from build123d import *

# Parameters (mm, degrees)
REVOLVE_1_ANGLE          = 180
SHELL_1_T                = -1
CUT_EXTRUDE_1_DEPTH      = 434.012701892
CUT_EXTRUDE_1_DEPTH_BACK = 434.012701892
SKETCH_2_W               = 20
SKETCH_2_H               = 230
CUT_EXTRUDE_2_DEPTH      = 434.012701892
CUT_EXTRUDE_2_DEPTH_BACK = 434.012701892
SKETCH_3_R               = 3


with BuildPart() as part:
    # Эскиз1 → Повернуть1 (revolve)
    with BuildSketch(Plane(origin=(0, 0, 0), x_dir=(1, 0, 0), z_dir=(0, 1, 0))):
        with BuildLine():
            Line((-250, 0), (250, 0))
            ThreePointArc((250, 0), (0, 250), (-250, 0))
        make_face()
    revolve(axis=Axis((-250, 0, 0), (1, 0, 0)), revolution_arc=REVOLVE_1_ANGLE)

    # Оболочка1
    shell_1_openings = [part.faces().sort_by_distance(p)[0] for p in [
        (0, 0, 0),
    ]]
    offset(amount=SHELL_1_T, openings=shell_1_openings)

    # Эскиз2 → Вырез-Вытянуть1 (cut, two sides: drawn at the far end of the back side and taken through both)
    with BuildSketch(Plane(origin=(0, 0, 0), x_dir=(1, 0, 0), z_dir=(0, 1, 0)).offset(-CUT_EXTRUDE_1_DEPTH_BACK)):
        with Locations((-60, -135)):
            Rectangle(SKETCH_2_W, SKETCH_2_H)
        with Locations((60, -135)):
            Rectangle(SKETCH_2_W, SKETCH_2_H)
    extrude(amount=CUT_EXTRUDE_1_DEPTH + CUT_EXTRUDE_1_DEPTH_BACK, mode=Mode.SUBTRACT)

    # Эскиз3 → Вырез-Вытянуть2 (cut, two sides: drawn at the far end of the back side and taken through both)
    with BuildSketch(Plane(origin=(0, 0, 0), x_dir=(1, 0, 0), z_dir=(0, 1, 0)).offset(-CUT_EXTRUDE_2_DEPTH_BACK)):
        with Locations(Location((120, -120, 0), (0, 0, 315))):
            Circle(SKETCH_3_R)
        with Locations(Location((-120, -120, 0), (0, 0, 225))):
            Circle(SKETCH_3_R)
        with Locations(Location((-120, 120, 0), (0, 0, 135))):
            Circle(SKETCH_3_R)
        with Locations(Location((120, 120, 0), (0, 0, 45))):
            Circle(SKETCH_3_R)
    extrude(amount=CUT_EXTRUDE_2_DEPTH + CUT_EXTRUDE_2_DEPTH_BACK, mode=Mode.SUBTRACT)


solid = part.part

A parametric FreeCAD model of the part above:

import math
import FreeCAD as App
import Part
import Sketcher

V = App.Vector
Q = App.Units.Quantity


def faces_at(feature, points):
    """Names of the faces that lie closest to the given points."""
    faces = feature.Shape.Faces
    near = lambda p: min(range(len(faces)), key=lambda i: faces[i].distToShape(Part.Vertex(*p))[0])
    return sorted({f"Face{near(p) + 1}" for p in points})


def add_polygon(sketch, points):
    """Adds a closed chain of lines whose ends are joined by coincident constraints."""
    first, n = sketch.GeometryCount, len(points)
    for a, b in zip(points, points[1:] + points[:1]):
        sketch.addGeometry(Part.LineSegment(App.Vector(*a, 0), App.Vector(*b, 0)), False)
    for i in range(n):
        sketch.addConstraint(Sketcher.Constraint("Coincident", first + i, 2, first + (i + 1) % n, 1))

doc = App.newDocument("Part")
params = doc.addObject("Spreadsheet::Sheet", "Params")
for row, (alias, value) in enumerate([
    ("sketch1_radius", "250 mm"),
    ("revolution_angle", "180 deg"),
    ("thickness_wall", "1 mm"),
    ("sketch2_width", "20 mm"),
    ("sketch2_height", "230 mm"),
    ("sketch3_diameter", "6 mm"),
], start=1):
    params.set(f"A{row}", alias)
    params.set(f"B{row}", "=" + value)
    params.setAlias(f"B{row}", alias)

body = doc.addObject("PartDesign::Body", "Body")

# Sketch on XZ plane
sketch1 = doc.addObject("Sketcher::SketchObject", "Sketch")
body.addObject(sketch1)
sketch1.AttachmentSupport = (doc.XZ_Plane, [""])
sketch1.MapMode = "FlatFace"
sketch1.addGeometry(Part.LineSegment(V(-250, 0, 0), V(250, 0, 0)), False)
sketch1.addGeometry(Part.ArcOfCircle(Part.Circle(V(0, 0, 0), V(0, 0, 1), 250), math.radians(180), math.radians(360)), False)
sketch1.addConstraint(Sketcher.Constraint("Coincident", 0, 1, 1, 1))
sketch1.addConstraint(Sketcher.Constraint("Coincident", 1, 2, 0, 2))
sketch1.addConstraint(Sketcher.Constraint("Horizontal", 0))
sketch1.addConstraint(Sketcher.Constraint("Coincident", 1, 3, -1, 1))
sketch1.addConstraint(Sketcher.Constraint("PointOnObject", 0, 1, -1))
sketch1.addConstraint(Sketcher.Constraint("Radius", 1, Q("250 mm")))
sketch1.setExpression("Constraints[5]", "Params.sketch1_radius")
revolution = doc.addObject("PartDesign::Revolution", "Revolution")
body.addObject(revolution)
revolution.Profile = sketch1
revolution.ReferenceAxis = (sketch1, ["H_Axis"])
revolution.setExpression("Angle", "Params.revolution_angle")
doc.recompute()

thickness = doc.addObject("PartDesign::Thickness", "Thickness")
body.addObject(thickness)
thickness.Base = (revolution, faces_at(revolution, [(0, 0, 0)]))
thickness.setExpression("Value", "Params.thickness_wall")
thickness.Reversed = True
thickness.Join = "Arc"

# Sketch on XZ plane
sketch2 = doc.addObject("Sketcher::SketchObject", "Sketch001")
body.addObject(sketch2)
sketch2.AttachmentSupport = (doc.XZ_Plane, [""])
sketch2.MapMode = "FlatFace"
add_polygon(sketch2, [(-70, 20), (-70, 250), (-50, 250), (-50, 20)])  # lines 0-3
add_polygon(sketch2, [(50, 20), (50, 250), (70, 250), (70, 20)])  # lines 4-7
sketch2.addConstraint(Sketcher.Constraint("Vertical", 0))
sketch2.addConstraint(Sketcher.Constraint("Horizontal", 1))
sketch2.addConstraint(Sketcher.Constraint("Vertical", 2))
sketch2.addConstraint(Sketcher.Constraint("Horizontal", 3))
sketch2.addConstraint(Sketcher.Constraint("Vertical", 4))
sketch2.addConstraint(Sketcher.Constraint("Horizontal", 5))
sketch2.addConstraint(Sketcher.Constraint("Vertical", 6))
sketch2.addConstraint(Sketcher.Constraint("Horizontal", 7))
sketch2.addConstraint(Sketcher.Constraint("Symmetric", 1, 2, 4, 2, -2))
sketch2.addConstraint(Sketcher.Constraint("Symmetric", 3, 2, 6, 2, -2))
sketch2.addConstraint(Sketcher.Constraint("DistanceX", 1, 1, 1, 2, Q("20 mm")))
sketch2.addConstraint(Sketcher.Constraint("DistanceY", 0, 1, 0, 2, Q("230 mm")))
sketch2.addConstraint(Sketcher.Constraint("DistanceX", 0, 2, -1, 1, Q("70 mm")))
sketch2.addConstraint(Sketcher.Constraint("DistanceY", -1, 1, 0, 2, Q("250 mm")))
sketch2.setExpression("Constraints[18]", "Params.sketch2_width")
sketch2.setExpression("Constraints[19]", "Params.sketch2_height")
pocket1 = doc.addObject("PartDesign::Pocket", "Pocket")
body.addObject(pocket1)
pocket1.Profile = sketch2
pocket1.Type = "ThroughAll"
pocket1.Midplane = True

# Sketch on XZ plane
sketch3 = doc.addObject("Sketcher::SketchObject", "Sketch002")
body.addObject(sketch3)
sketch3.AttachmentSupport = (doc.XZ_Plane, [""])
sketch3.MapMode = "FlatFace"
sketch3.addGeometry(Part.Circle(V(120, 120, 0), V(0, 0, 1), 3), False)
sketch3.addGeometry(Part.Circle(V(-120, 120, 0), V(0, 0, 1), 3), False)
sketch3.addGeometry(Part.Circle(V(-120, -120, 0), V(0, 0, 1), 3), False)
sketch3.addGeometry(Part.Circle(V(120, -120, 0), V(0, 0, 1), 3), False)
sketch3.addConstraint(Sketcher.Constraint("Equal", 0, 1))
sketch3.addConstraint(Sketcher.Constraint("Equal", 1, 2))
sketch3.addConstraint(Sketcher.Constraint("Equal", 2, 3))
sketch3.addConstraint(Sketcher.Constraint("Symmetric", 0, 3, 2, 3, -1, 1))
sketch3.addConstraint(Sketcher.Constraint("Symmetric", 1, 3, 3, 3, -1, 1))
sketch3.addConstraint(Sketcher.Constraint("Symmetric", 0, 3, 1, 3, -2))
sketch3.addConstraint(Sketcher.Constraint("Diameter", 0, Q("6 mm")))
sketch3.addConstraint(Sketcher.Constraint("DistanceX", -1, 1, 0, 3, Q("120 mm")))
sketch3.addConstraint(Sketcher.Constraint("DistanceY", -1, 1, 0, 3, Q("120 mm")))
sketch3.setExpression("Constraints[6]", "Params.sketch3_diameter")
pocket2 = doc.addObject("PartDesign::Pocket", "Pocket001")
body.addObject(pocket2)
pocket2.Profile = sketch3
pocket2.Type = "ThroughAll"
pocket2.Midplane = True

doc.recompute()
